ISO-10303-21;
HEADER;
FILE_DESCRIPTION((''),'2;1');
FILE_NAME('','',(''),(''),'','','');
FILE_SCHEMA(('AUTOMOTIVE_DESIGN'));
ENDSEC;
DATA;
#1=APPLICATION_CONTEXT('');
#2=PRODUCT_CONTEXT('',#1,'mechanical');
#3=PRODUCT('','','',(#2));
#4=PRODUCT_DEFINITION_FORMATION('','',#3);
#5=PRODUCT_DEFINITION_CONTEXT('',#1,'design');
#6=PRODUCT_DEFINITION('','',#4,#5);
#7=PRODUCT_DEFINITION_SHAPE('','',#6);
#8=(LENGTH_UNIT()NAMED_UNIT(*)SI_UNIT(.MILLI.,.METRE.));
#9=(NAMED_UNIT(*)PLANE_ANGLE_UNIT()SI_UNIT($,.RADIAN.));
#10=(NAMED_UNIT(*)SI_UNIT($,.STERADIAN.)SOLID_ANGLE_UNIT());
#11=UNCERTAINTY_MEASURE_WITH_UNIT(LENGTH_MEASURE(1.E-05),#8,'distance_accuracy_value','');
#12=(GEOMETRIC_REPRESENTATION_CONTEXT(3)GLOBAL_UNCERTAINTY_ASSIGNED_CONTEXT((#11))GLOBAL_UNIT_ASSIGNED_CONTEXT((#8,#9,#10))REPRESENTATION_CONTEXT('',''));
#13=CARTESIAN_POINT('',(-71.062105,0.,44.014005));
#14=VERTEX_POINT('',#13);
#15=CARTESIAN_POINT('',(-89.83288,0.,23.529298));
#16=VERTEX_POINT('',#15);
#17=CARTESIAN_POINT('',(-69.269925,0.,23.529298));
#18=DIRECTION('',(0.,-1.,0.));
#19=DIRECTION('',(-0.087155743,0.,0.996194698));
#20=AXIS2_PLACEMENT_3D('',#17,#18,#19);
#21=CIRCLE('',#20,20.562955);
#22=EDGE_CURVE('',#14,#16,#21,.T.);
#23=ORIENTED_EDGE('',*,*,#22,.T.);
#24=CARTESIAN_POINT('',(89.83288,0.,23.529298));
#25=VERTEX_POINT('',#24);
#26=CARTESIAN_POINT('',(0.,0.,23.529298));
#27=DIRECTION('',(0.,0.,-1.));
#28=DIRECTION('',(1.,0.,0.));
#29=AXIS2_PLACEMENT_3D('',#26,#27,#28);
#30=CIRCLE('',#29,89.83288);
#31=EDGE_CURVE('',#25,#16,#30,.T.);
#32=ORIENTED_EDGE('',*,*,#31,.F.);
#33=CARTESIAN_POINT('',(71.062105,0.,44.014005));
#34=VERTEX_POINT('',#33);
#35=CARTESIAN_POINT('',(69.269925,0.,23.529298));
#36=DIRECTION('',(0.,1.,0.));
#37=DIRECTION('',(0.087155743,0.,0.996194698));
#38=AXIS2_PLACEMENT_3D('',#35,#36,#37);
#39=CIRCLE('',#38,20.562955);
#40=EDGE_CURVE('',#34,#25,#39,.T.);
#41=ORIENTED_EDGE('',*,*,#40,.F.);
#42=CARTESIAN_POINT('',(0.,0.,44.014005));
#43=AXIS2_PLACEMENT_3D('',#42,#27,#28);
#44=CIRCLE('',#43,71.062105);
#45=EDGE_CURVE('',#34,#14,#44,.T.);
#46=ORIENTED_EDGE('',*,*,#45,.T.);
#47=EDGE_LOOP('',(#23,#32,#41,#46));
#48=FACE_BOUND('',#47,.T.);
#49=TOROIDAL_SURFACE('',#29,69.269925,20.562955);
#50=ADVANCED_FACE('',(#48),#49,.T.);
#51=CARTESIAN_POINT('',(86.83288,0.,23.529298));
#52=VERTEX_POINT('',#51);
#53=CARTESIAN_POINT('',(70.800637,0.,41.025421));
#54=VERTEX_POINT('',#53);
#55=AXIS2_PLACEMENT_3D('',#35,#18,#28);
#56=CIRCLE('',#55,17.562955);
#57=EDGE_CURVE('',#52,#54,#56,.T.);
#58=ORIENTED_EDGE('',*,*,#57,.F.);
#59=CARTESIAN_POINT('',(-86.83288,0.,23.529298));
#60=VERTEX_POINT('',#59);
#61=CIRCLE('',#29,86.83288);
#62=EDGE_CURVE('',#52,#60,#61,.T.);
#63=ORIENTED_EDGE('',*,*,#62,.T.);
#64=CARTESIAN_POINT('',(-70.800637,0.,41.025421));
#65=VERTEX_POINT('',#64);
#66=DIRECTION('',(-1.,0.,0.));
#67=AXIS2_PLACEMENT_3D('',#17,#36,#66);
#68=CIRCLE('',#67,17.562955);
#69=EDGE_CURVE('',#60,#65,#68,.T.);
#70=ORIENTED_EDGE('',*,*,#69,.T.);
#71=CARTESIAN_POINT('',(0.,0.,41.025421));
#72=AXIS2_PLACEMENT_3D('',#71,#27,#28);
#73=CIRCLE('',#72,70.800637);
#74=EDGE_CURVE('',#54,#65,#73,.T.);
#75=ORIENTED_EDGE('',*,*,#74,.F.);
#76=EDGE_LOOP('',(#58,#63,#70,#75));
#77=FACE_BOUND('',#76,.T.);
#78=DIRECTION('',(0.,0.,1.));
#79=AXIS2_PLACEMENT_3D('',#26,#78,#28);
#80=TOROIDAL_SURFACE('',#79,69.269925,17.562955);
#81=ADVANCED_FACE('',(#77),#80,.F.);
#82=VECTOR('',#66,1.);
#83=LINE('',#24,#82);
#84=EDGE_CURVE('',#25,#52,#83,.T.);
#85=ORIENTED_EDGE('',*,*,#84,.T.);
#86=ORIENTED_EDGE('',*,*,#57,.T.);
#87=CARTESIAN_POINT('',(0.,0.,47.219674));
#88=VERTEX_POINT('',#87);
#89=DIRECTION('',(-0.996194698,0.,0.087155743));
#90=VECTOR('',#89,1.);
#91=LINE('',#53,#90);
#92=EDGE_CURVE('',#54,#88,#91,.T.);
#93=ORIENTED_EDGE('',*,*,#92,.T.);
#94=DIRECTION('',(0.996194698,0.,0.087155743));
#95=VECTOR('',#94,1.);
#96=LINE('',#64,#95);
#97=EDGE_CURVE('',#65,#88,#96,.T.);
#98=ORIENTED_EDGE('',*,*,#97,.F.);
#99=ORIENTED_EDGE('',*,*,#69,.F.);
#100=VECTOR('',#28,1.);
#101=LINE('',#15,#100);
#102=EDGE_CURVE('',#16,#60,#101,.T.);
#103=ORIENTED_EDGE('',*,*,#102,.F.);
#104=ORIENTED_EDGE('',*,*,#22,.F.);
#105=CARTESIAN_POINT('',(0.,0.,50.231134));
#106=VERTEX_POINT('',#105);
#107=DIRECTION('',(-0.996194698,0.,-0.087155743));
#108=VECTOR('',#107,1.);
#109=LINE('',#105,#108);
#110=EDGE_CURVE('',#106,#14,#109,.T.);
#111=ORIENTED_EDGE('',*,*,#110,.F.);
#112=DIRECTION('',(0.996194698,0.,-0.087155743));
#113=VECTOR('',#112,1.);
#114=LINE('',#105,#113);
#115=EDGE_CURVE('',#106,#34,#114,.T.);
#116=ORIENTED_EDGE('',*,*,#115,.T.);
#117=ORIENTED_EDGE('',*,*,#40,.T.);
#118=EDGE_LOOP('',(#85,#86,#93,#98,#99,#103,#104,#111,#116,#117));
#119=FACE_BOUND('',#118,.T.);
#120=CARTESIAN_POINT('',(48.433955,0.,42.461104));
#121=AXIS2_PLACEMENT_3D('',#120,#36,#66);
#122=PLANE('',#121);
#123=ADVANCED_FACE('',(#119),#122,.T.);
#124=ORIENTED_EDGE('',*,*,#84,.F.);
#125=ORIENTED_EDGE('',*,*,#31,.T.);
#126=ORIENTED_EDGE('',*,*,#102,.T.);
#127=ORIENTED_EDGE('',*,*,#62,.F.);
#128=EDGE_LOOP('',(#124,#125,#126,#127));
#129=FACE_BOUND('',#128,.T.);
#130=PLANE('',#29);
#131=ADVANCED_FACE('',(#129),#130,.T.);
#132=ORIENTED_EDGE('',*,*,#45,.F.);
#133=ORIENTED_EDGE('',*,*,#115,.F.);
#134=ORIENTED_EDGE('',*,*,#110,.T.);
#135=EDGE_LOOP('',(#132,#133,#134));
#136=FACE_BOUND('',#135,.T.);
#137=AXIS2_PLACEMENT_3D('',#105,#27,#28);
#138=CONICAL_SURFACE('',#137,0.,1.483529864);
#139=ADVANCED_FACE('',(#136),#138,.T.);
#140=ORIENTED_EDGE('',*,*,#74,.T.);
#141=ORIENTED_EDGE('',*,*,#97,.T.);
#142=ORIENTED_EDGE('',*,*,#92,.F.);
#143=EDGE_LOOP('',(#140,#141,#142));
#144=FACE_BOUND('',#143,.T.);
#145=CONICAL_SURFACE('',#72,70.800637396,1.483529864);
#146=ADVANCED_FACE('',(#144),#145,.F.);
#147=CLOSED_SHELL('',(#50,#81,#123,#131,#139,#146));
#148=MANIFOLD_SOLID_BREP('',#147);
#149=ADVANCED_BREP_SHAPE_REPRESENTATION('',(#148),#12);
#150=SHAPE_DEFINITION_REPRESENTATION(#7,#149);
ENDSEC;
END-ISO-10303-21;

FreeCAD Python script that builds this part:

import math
import FreeCAD as App
import Part
import Sketcher
from FreeCAD import Vector
Q = App.Units.Quantity

doc = App.newDocument("Part")
body = doc.addObject("PartDesign::Body", "Body")

# Sketch on XZ plane
sketch1 = doc.addObject("Sketcher::SketchObject", "Sketch")
body.addObject(sketch1)
sketch1.AttachmentSupport = (doc.XZ_Plane, [""])
sketch1.MapMode = "FlatFace"
sketch1.addGeometry(Part.LineSegment(Vector(0, 47.2, 0), Vector(0, 50.2, 0)), False)
sketch1.addGeometry(Part.LineSegment(Vector(0, 50.2, 0), Vector(71.1, 44, 0)), False)
sketch1.addGeometry(Part.ArcOfCircle(Part.Circle(Vector(69.3, 23.5, 0), Vector(0, 0, 1), 20.6), math.radians(0), math.radians(85)), False)
sketch1.addGeometry(Part.LineSegment(Vector(89.8, 23.5, 0), Vector(86.8, 23.5, 0)), False)
sketch1.addGeometry(Part.ArcOfCircle(Part.Circle(Vector(69.3, 23.5, 0), Vector(0, 0, 1), 17.6), math.radians(0), math.radians(85)), False)
sketch1.addGeometry(Part.LineSegment(Vector(70.8, 41, 0), Vector(0, 47.2, 0)), False)
sketch1.addConstraint(Sketcher.Constraint("Coincident", 0, 2, 1, 1))
sketch1.addConstraint(Sketcher.Constraint("Tangent", 1, 2, 2, 2))
sketch1.addConstraint(Sketcher.Constraint("Coincident", 2, 1, 3, 1))
sketch1.addConstraint(Sketcher.Constraint("Coincident", 3, 2, 4, 1))
sketch1.addConstraint(Sketcher.Constraint("Tangent", 4, 2, 5, 1))
sketch1.addConstraint(Sketcher.Constraint("Coincident", 5, 2, 0, 1))
sketch1.addConstraint(Sketcher.Constraint("Vertical", 0))
sketch1.addConstraint(Sketcher.Constraint("Horizontal", 3))
sketch1.addConstraint(Sketcher.Constraint("Coincident", 4, 3, 2, 3))
sketch1.addConstraint(Sketcher.Constraint("PointOnObject", 0, 2, -2))
sketch1.addConstraint(Sketcher.Constraint("Parallel", 1, 5))
sketch1.addConstraint(Sketcher.Constraint("Horizontal", 4, 3, 2, 1))
sketch1.addConstraint(Sketcher.Constraint("DistanceX", 3, 2, 3, 1, Q("3 mm")))
sketch1.addConstraint(Sketcher.Constraint("Angle", 1, Q("-5 deg")))
sketch1.addConstraint(Sketcher.Constraint("Radius", 2, Q("20.562955 mm")))
sketch1.addConstraint(Sketcher.Constraint("DistanceY", -1, 1, 2, 3, Q("23.529298 mm")))
sketch1.addConstraint(Sketcher.Constraint("Distance", 1, Q("71.33355 mm")))
revolution = doc.addObject("PartDesign::Revolution", "Revolution")
body.addObject(revolution)
revolution.Profile = sketch1
revolution.ReferenceAxis = (sketch1, ["V_Axis"])
revolution.Angle = 180
revolution.Reversed = True

doc.recompute()
